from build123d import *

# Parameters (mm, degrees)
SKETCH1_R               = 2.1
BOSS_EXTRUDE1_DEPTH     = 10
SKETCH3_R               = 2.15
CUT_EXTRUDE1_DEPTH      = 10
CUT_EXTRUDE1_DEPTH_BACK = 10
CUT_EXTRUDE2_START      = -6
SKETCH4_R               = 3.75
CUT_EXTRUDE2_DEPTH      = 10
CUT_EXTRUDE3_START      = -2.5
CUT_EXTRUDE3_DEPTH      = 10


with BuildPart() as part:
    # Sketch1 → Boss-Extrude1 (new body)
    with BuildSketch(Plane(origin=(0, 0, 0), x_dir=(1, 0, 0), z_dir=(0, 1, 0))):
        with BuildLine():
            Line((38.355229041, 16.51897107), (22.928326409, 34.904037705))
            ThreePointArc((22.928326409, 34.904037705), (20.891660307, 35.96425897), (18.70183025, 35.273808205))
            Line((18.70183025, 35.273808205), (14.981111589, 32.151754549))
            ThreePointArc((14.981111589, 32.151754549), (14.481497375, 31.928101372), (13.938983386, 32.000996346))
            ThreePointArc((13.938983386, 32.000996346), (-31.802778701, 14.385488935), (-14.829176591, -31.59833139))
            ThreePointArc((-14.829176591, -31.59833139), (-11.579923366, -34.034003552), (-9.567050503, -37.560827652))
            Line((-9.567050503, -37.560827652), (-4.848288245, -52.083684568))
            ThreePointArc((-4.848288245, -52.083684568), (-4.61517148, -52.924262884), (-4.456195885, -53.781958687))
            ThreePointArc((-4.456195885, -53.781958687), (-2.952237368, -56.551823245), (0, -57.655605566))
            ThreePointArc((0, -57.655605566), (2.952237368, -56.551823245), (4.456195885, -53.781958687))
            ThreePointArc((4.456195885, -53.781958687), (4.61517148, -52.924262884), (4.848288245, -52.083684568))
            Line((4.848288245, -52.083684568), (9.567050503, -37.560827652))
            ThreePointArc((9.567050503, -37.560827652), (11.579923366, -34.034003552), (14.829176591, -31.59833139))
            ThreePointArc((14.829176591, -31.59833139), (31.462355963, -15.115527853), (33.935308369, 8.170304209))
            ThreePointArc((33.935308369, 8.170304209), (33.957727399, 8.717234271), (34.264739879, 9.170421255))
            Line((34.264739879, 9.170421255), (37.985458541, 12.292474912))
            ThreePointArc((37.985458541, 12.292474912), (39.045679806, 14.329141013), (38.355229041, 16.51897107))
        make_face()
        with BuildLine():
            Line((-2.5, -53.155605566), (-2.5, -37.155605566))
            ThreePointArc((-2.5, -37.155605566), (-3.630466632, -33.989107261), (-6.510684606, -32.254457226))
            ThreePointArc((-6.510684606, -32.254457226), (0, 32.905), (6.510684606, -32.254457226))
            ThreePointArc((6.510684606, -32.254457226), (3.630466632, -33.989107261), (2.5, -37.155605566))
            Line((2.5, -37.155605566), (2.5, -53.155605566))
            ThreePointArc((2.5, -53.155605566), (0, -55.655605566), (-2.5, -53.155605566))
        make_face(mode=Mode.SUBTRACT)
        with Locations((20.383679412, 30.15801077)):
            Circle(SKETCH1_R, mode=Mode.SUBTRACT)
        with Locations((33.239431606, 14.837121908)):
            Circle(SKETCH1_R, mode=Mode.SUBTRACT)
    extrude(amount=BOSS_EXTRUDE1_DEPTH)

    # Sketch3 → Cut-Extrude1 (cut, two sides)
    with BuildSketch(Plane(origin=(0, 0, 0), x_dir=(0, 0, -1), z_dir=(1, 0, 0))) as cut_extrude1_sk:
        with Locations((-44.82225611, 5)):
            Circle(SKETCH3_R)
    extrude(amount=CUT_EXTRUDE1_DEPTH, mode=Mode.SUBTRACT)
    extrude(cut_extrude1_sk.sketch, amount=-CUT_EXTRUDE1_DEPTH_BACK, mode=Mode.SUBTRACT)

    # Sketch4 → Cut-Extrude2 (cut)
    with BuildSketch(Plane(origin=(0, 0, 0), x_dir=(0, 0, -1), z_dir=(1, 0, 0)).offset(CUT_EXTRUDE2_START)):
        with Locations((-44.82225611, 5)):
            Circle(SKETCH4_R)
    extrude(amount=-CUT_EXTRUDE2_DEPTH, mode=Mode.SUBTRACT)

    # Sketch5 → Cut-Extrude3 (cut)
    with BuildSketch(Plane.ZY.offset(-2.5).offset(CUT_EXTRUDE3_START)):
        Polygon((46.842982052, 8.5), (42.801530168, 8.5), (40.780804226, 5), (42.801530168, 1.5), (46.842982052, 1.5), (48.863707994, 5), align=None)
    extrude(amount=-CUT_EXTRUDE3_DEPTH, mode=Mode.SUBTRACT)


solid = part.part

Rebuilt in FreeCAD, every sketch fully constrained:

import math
import FreeCAD as App
import Part
import Sketcher

V = App.Vector
Q = App.Units.Quantity

doc = App.newDocument("Part")
body = doc.addObject("PartDesign::Body", "Body")

sketch1 = body.newObject("Sketcher::SketchObject", "Sketch")
sketch1.AttachmentSupport = (doc.getObject("XZ_Plane"), [""])
sketch1.MapMode = "FlatFace"
sketch1.addGeometry(Part.LineSegment(V(38.355229, -16.518971, 0), V(22.928326, -34.904038, 0)), False)
sketch1.addGeometry(Part.ArcOfCircle(Part.Circle(V(20.630193, -32.975675, 0), V(0, 0, 1), 3), math.radians(-130), math.radians(-40)), False)
sketch1.addGeometry(Part.LineSegment(V(18.70183, -35.273808, 0), V(14.981112, -32.151755, 0)), False)
sketch1.addGeometry(Part.ArcOfCircle(Part.Circle(V(14.338324, -32.917799, 0), V(0, 0, 1), 1), math.radians(50), math.radians(113.536962)), False)
sketch1.addGeometry(Part.ArcOfCircle(Part.Circle(V(0, 0, 0), V(0, 0, 1), 34.905), math.radians(115.140784), math.radians(293.536962)), False)
sketch1.addGeometry(Part.ArcOfCircle(Part.Circle(V(-19.077616, 40.650998, 0), V(0, 0, 1), 10), math.radians(-64.859216), math.radians(-18)), False)
sketch1.addGeometry(Part.LineSegment(V(-9.567051, 37.560828, 0), V(-4.848288, 52.083685, 0)), False)
sketch1.addGeometry(Part.ArcOfCircle(Part.Circle(V(-14.358853, 55.173855, 0), V(0, 0, 1), 10), math.radians(-18), math.radians(-8.000954)), False)
sketch1.addGeometry(Part.ArcOfCircle(Part.Circle(V(0, 53.155606, 0), V(0, 0, 1), 4.5), math.radians(90), math.radians(171.999046)), False)
sketch1.addGeometry(Part.ArcOfCircle(Part.Circle(V(0, 53.155606, 0), V(0, 0, 1), 4.5), math.radians(8.000954), math.radians(90)), False)
sketch1.addGeometry(Part.ArcOfCircle(Part.Circle(V(14.358853, 55.173855, 0), V(0, 0, 1), 10), math.radians(-171.999046), math.radians(-162)), False)
sketch1.addGeometry(Part.LineSegment(V(4.848288, 52.083685, 0), V(9.567051, 37.560828, 0)), False)
sketch1.addGeometry(Part.ArcOfCircle(Part.Circle(V(19.077616, 40.650998, 0), V(0, 0, 1), 10), math.radians(-162), math.radians(-115.140784)), False)
sketch1.addGeometry(Part.ArcOfCircle(Part.Circle(V(0, 0, 0), V(0, 0, 1), 34.905), math.radians(-13.536962), math.radians(64.859216)), False)
sketch1.addGeometry(Part.ArcOfCircle(Part.Circle(V(34.907527, -8.404377, 0), V(0, 0, 1), 1), math.radians(166.463038), math.radians(230)), False)
sketch1.addGeometry(Part.LineSegment(V(34.26474, -9.170421, 0), V(37.985459, -12.292475, 0)), False)
sketch1.addGeometry(Part.ArcOfCircle(Part.Circle(V(36.057096, -14.590608, 0), V(0, 0, 1), 3), math.radians(-40), math.radians(50)), False)
sketch1.addGeometry(Part.ArcOfCircle(Part.Circle(V(0, 53.155606, 0), V(0, 0, 1), 2.5), math.radians(0), math.radians(180)), False)
sketch1.addGeometry(Part.LineSegment(V(-2.5, 53.155606, 0), V(-2.5, 37.155606, 0)), False)
sketch1.addGeometry(Part.ArcOfCircle(Part.Circle(V(-7.5, 37.155606, 0), V(0, 0, 1), 5), math.radians(-78.587975), math.radians(0)), False)
sketch1.addGeometry(Part.ArcOfCircle(Part.Circle(V(0, 0, 0), V(0, 0, 1), 32.905), math.radians(101.412025), math.radians(438.587975)), False)
sketch1.addGeometry(Part.ArcOfCircle(Part.Circle(V(7.5, 37.155606, 0), V(0, 0, 1), 5), math.radians(180), math.radians(258.587975)), False)
sketch1.addGeometry(Part.LineSegment(V(2.5, 37.155606, 0), V(2.5, 53.155606, 0)), False)
sketch1.addGeometry(Part.Circle(V(33.239432, -14.837122, 0), V(0, 0, 1), 2.1), False)
sketch1.addGeometry(Part.Circle(V(20.383679, -30.158011, 0), V(0, 0, 1), 2.1), False)
sketch1.addConstraint(Sketcher.Constraint("Tangent", 0, 2, 1, 2))
sketch1.addConstraint(Sketcher.Constraint("Tangent", 1, 1, 2, 1))
sketch1.addConstraint(Sketcher.Constraint("Tangent", 2, 2, 3, 1))
sketch1.addConstraint(Sketcher.Constraint("Tangent", 3, 2, 4, 2))
sketch1.addConstraint(Sketcher.Constraint("Tangent", 4, 1, 5, 1))
sketch1.addConstraint(Sketcher.Constraint("Tangent", 5, 2, 6, 1))
sketch1.addConstraint(Sketcher.Constraint("Tangent", 6, 2, 7, 1))
sketch1.addConstraint(Sketcher.Constraint("Tangent", 7, 2, 8, 2))
sketch1.addConstraint(Sketcher.Constraint("Tangent", 8, 1, 9, 2))
sketch1.addConstraint(Sketcher.Constraint("Tangent", 9, 1, 10, 1))
sketch1.addConstraint(Sketcher.Constraint("Tangent", 10, 2, 11, 1))
sketch1.addConstraint(Sketcher.Constraint("Tangent", 11, 2, 12, 1))
sketch1.addConstraint(Sketcher.Constraint("Tangent", 12, 2, 13, 2))
sketch1.addConstraint(Sketcher.Constraint("Tangent", 13, 1, 14, 1))
sketch1.addConstraint(Sketcher.Constraint("Tangent", 14, 2, 15, 1))
sketch1.addConstraint(Sketcher.Constraint("Tangent", 15, 2, 16, 2))
sketch1.addConstraint(Sketcher.Constraint("Tangent", 16, 1, 0, 1))
sketch1.addConstraint(Sketcher.Constraint("Tangent", 17, 2, 18, 1))
sketch1.addConstraint(Sketcher.Constraint("Tangent", 18, 2, 19, 2))
sketch1.addConstraint(Sketcher.Constraint("Tangent", 19, 1, 20, 1))
sketch1.addConstraint(Sketcher.Constraint("Tangent", 20, 2, 21, 2))
sketch1.addConstraint(Sketcher.Constraint("Tangent", 21, 1, 22, 1))
sketch1.addConstraint(Sketcher.Constraint("Tangent", 22, 2, 17, 1))
sketch1.addConstraint(Sketcher.Constraint("Vertical", 18))
sketch1.addConstraint(Sketcher.Constraint("Vertical", 22))
sketch1.addConstraint(Sketcher.Constraint("Coincident", 4, 3, -1, 1))
sketch1.addConstraint(Sketcher.Constraint("Coincident", 13, 3, -1, 1))
sketch1.addConstraint(Sketcher.Constraint("Coincident", 20, 3, -1, 1))
sketch1.addConstraint(Sketcher.Constraint("Coincident", 17, 3, 8, 3))
sketch1.addConstraint(Sketcher.Constraint("Equal", 5, 7))
sketch1.addConstraint(Sketcher.Constraint("Equal", 8, 9))
sketch1.addConstraint(Sketcher.Constraint("Equal", 7, 10))
sketch1.addConstraint(Sketcher.Constraint("Equal", 10, 12))
sketch1.addConstraint(Sketcher.Constraint("Equal", 4, 13))
sketch1.addConstraint(Sketcher.Constraint("Equal", 3, 14))
sketch1.addConstraint(Sketcher.Constraint("Equal", 1, 16))
sketch1.addConstraint(Sketcher.Constraint("Equal", 19, 21))
sketch1.addConstraint(Sketcher.Constraint("Equal", 23, 24))
sketch1.addConstraint(Sketcher.Constraint("Symmetric", 7, 3, 10, 3, -2))
sketch1.addConstraint(Sketcher.Constraint("PointOnObject", 8, 1, -2))
sketch1.addConstraint(Sketcher.Constraint("Perpendicular", 0, 2))
sketch1.addConstraint(Sketcher.Constraint("Parallel", 2, 15))
sketch1.addConstraint(Sketcher.Constraint("Horizontal", 5, 3, 12, 3))
sketch1.addConstraint(Sketcher.Constraint("Equal", 2, 15))
sketch1.addConstraint(Sketcher.Constraint("Radius", 1, Q("3 mm")))
sketch1.addConstraint(Sketcher.Constraint("Radius", 3, Q("1 mm")))
sketch1.addConstraint(Sketcher.Constraint("Radius", 5, Q("10 mm")))
sketch1.addConstraint(Sketcher.Constraint("Radius", 19, Q("5 mm")))
sketch1.addConstraint(Sketcher.Constraint("Diameter", 23, Q("4.2 mm")))
sketch1.addConstraint(Sketcher.Constraint("Radius", 8, Q("4.5 mm")))
sketch1.addConstraint(Sketcher.Constraint("Radius", 17, Q("2.5 mm")))
sketch1.addConstraint(Sketcher.Constraint("DistanceY", 18, 2, 18, 1, Q("16 mm")))
sketch1.addConstraint(Sketcher.Constraint("Angle", 0, Q("-130 deg")))
sketch1.addConstraint(Sketcher.Constraint("Angle", 6, Q("72 deg")))
sketch1.addConstraint(Sketcher.Constraint("Distance", 0, Q("24 mm")))
sketch1.addConstraint(Sketcher.Constraint("Radius", 4, Q("34.905 mm")))
sketch1.addConstraint(Sketcher.Constraint("Radius", 20, Q("32.905 mm")))
sketch1.addConstraint(Sketcher.Constraint("DistanceY", 1, 3, 14, 3, Q("24.571298 mm")))
sketch1.addConstraint(Sketcher.Constraint("DistanceX", 1, 1, 23, 3, Q("14.537601 mm")))
sketch1.addConstraint(Sketcher.Constraint("DistanceY", 23, 3, 14, 2, Q("5.666701 mm")))
sketch1.addConstraint(Sketcher.Constraint("DistanceX", -1, 1, 24, 3, Q("20.383679 mm")))
sketch1.addConstraint(Sketcher.Constraint("DistanceY", 24, 3, -1, 1, Q("30.158011 mm")))
sketch1.addConstraint(Sketcher.Constraint("DistanceY", -1, 1, 4, 1, Q("31.598331 mm")))
pad1 = body.newObject("PartDesign::Pad", "Pad")
pad1.Profile = sketch1
pad1.Length = 10
pad1.Reversed = True

sketch2 = body.newObject("Sketcher::SketchObject", "Sketch001")
sketch2.AttachmentSupport = (doc.getObject("YZ_Plane"), [""])
sketch2.MapMode = "FlatFace"
sketch2.addGeometry(Part.Circle(V(5, 44.822256, 0), V(0, 0, 1), 2.15), False)
sketch2.addConstraint(Sketcher.Constraint("Diameter", 0, Q("4.3 mm")))
sketch2.addConstraint(Sketcher.Constraint("DistanceX", -1, 1, 0, 3, Q("5 mm")))
sketch2.addConstraint(Sketcher.Constraint("DistanceY", -1, 1, 0, 3, Q("44.822256 mm")))
pocket1 = body.newObject("PartDesign::Pocket", "Pocket")
pocket1.Profile = sketch2
pocket1.Type = "ThroughAll"
pocket1.Midplane = True

sketch3 = body.newObject("Sketcher::SketchObject", "Sketch002")
sketch3.AttachmentSupport = (doc.getObject("YZ_Plane"), [""])
sketch3.MapMode = "FlatFace"
sketch3.AttachmentOffset = App.Placement(V(0, 0, -6), App.Rotation())
sketch3.addGeometry(Part.Circle(V(5, 44.822256, 0), V(0, 0, 1), 3.75), False)
sketch3.addConstraint(Sketcher.Constraint("Diameter", 0, Q("7.5 mm")))
sketch3.addConstraint(Sketcher.Constraint("DistanceX", -1, 1, 0, 3, Q("5 mm")))
sketch3.addConstraint(Sketcher.Constraint("DistanceY", -1, 1, 0, 3, Q("44.822256 mm")))
pocket2 = body.newObject("PartDesign::Pocket", "Pocket001")
pocket2.Profile = sketch3
pocket2.Length = 10

sketch4 = body.newObject("Sketcher::SketchObject", "Sketch003")
sketch4.AttachmentSupport = (doc.getObject("YZ_Plane"), [""])
sketch4.MapMode = "FlatFace"
sketch4.AttachmentOffset = App.Placement(V(0, 0, 5), App.Rotation())
sketch4.addGeometry(Part.LineSegment(V(8.5, 46.842982, 0), V(8.5, 42.80153, 0)), False)
sketch4.addGeometry(Part.LineSegment(V(8.5, 42.80153, 0), V(5, 40.780804, 0)), False)
sketch4.addGeometry(Part.LineSegment(V(5, 40.780804, 0), V(1.5, 42.80153, 0)), False)
sketch4.addGeometry(Part.LineSegment(V(1.5, 42.80153, 0), V(1.5, 46.842982, 0)), False)
sketch4.addGeometry(Part.LineSegment(V(1.5, 46.842982, 0), V(5, 48.863708, 0)), False)
sketch4.addGeometry(Part.LineSegment(V(5, 48.863708, 0), V(8.5, 46.842982, 0)), False)
sketch4.addConstraint(Sketcher.Constraint("Coincident", 0, 2, 1, 1))
sketch4.addConstraint(Sketcher.Constraint("Coincident", 1, 2, 2, 1))
sketch4.addConstraint(Sketcher.Constraint("Coincident", 2, 2, 3, 1))
sketch4.addConstraint(Sketcher.Constraint("Coincident", 3, 2, 4, 1))
sketch4.addConstraint(Sketcher.Constraint("Coincident", 4, 2, 5, 1))
sketch4.addConstraint(Sketcher.Constraint("Coincident", 5, 2, 0, 1))
sketch4.addConstraint(Sketcher.Constraint("Vertical", 0))
sketch4.addConstraint(Sketcher.Constraint("Vertical", 3))
sketch4.addConstraint(Sketcher.Constraint("Parallel", 1, 4))
sketch4.addConstraint(Sketcher.Constraint("Parallel", 2, 5))
sketch4.addConstraint(Sketcher.Constraint("Horizontal", 0, 2, 2, 2))
sketch4.addConstraint(Sketcher.Constraint("Horizontal", 3, 2, 5, 2))
sketch4.addConstraint(Sketcher.Constraint("Vertical", 1, 2, 4, 2))
sketch4.addConstraint(Sketcher.Constraint("Angle", 1, Q("-150 deg")))
sketch4.addConstraint(Sketcher.Constraint("DistanceX", -1, 1, 1, 2, Q("5 mm")))
sketch4.addConstraint(Sketcher.Constraint("DistanceX", 2, 2, 0, 2, Q("7 mm")))
sketch4.addConstraint(Sketcher.Constraint("DistanceY", 0, 2, 0, 1, Q("4.041452 mm")))
sketch4.addConstraint(Sketcher.Constraint("DistanceY", -1, 1, 0, 2, Q("42.80153 mm")))
pocket3 = body.newObject("PartDesign::Pocket", "Pocket002")
pocket3.Profile = sketch4
pocket3.Length = 10
pocket3.Reversed = True

doc.recompute()
